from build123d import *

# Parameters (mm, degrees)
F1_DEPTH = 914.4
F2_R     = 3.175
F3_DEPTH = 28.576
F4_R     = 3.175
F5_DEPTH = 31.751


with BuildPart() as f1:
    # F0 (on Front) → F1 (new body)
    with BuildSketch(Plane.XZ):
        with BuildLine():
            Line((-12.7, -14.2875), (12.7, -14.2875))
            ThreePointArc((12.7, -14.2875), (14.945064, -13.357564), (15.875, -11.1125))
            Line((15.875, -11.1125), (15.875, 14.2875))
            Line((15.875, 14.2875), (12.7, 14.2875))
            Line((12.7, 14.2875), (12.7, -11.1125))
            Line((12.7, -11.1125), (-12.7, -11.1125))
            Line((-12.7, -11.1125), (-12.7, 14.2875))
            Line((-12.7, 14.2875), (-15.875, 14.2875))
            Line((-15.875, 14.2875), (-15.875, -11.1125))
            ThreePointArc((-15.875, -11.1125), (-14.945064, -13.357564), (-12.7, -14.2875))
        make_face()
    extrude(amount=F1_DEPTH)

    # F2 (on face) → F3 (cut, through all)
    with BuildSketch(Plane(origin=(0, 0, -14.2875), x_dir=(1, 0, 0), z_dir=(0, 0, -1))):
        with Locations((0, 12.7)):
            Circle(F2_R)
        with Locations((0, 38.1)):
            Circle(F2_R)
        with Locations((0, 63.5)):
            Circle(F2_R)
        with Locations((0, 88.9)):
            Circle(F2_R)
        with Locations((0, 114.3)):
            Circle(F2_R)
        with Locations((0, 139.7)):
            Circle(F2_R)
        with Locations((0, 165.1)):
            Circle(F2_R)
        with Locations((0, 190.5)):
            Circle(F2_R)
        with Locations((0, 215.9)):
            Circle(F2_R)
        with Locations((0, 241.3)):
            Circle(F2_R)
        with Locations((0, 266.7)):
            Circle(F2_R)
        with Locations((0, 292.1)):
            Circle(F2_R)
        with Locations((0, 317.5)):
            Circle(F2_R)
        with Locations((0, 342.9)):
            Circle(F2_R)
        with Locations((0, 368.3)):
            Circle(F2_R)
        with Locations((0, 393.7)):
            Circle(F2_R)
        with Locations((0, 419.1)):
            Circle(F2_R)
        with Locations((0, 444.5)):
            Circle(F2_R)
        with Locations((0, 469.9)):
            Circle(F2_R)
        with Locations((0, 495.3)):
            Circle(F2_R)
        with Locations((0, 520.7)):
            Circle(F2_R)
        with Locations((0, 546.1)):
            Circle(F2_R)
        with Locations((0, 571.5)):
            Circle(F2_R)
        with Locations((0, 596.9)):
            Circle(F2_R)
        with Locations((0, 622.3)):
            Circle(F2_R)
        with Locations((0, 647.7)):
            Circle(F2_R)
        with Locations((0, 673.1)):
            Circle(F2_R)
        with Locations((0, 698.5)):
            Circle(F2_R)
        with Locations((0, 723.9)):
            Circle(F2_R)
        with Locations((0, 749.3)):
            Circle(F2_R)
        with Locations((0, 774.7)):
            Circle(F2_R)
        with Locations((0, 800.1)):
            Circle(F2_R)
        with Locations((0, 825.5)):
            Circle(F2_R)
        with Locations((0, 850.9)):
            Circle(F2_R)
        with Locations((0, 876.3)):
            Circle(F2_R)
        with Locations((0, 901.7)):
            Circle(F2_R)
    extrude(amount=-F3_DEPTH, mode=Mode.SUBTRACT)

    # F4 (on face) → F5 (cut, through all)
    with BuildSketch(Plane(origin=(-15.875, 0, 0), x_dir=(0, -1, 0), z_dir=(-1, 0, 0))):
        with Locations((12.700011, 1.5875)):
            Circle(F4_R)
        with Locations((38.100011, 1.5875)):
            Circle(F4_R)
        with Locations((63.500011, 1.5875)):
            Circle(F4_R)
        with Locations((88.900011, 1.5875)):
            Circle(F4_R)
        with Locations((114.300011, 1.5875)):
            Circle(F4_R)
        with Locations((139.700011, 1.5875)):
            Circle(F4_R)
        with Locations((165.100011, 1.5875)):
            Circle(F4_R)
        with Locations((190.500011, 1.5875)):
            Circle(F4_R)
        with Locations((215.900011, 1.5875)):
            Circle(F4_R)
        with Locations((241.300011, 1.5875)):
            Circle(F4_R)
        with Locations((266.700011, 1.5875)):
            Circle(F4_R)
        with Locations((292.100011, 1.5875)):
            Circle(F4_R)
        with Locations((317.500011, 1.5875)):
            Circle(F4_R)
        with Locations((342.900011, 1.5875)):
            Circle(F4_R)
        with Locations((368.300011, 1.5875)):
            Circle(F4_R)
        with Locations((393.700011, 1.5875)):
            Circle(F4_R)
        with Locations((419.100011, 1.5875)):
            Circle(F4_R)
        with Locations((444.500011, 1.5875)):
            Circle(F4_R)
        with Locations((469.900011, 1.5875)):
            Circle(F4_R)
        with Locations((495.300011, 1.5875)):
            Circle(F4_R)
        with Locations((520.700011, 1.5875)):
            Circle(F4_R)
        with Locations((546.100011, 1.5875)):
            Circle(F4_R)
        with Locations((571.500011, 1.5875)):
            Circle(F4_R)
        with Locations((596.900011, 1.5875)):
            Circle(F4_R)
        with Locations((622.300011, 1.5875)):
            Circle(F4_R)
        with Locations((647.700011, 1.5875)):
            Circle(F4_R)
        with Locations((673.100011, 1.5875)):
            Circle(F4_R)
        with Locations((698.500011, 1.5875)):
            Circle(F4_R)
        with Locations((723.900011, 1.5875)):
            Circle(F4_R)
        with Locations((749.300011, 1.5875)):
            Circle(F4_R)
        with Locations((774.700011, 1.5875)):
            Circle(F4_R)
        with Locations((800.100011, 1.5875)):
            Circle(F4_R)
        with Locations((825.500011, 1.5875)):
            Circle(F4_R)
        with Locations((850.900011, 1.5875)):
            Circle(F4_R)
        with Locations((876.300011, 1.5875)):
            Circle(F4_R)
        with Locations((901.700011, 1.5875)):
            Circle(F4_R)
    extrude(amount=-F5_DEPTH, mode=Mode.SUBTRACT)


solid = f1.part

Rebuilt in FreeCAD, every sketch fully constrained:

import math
import FreeCAD as App
import Part
import Sketcher
Q = App.Units.Quantity

doc = App.newDocument("Part")
body = doc.addObject("PartDesign::Body", "Body")

# Sketch on XZ plane
sketch1 = body.newObject("Sketcher::SketchObject", "Sketch")
sketch1.AttachmentSupport = (doc.getObject("XZ_Plane"), [""])
sketch1.MapMode = "FlatFace"
sketch1.addGeometry(Part.LineSegment(App.Vector(-12.7, -14.3, 0), App.Vector(12.7, -14.3, 0)), False)
sketch1.addGeometry(Part.ArcOfCircle(Part.Circle(App.Vector(12.7, -11.1, 0), App.Vector(0, 0, 1), 3.2), math.radians(-90), math.radians(0)), False)
sketch1.addGeometry(Part.LineSegment(App.Vector(15.9, -11.1, 0), App.Vector(15.9, 14.3, 0)), False)
sketch1.addGeometry(Part.LineSegment(App.Vector(15.9, 14.3, 0), App.Vector(12.7, 14.3, 0)), False)
sketch1.addGeometry(Part.LineSegment(App.Vector(12.7, 14.3, 0), App.Vector(12.7, -11.1, 0)), False)
sketch1.addGeometry(Part.LineSegment(App.Vector(12.7, -11.1, 0), App.Vector(-12.7, -11.1, 0)), False)
sketch1.addGeometry(Part.LineSegment(App.Vector(-12.7, -11.1, 0), App.Vector(-12.7, 14.3, 0)), False)
sketch1.addGeometry(Part.LineSegment(App.Vector(-12.7, 14.3, 0), App.Vector(-15.9, 14.3, 0)), False)
sketch1.addGeometry(Part.LineSegment(App.Vector(-15.9, 14.3, 0), App.Vector(-15.9, -11.1, 0)), False)
sketch1.addGeometry(Part.ArcOfCircle(Part.Circle(App.Vector(-12.7, -11.1, 0), App.Vector(0, 0, 1), 3.2), math.radians(-180), math.radians(-90)), False)
sketch1.addConstraint(Sketcher.Constraint("Tangent", 0, 2, 1, 1))
sketch1.addConstraint(Sketcher.Constraint("Tangent", 1, 2, 2, 1))
sketch1.addConstraint(Sketcher.Constraint("Coincident", 2, 2, 3, 1))
sketch1.addConstraint(Sketcher.Constraint("Coincident", 3, 2, 4, 1))
sketch1.addConstraint(Sketcher.Constraint("Coincident", 4, 2, 5, 1))
sketch1.addConstraint(Sketcher.Constraint("Coincident", 5, 2, 6, 1))
sketch1.addConstraint(Sketcher.Constraint("Coincident", 6, 2, 7, 1))
sketch1.addConstraint(Sketcher.Constraint("Coincident", 7, 2, 8, 1))
sketch1.addConstraint(Sketcher.Constraint("Tangent", 8, 2, 9, 1))
sketch1.addConstraint(Sketcher.Constraint("Tangent", 9, 2, 0, 1))
sketch1.addConstraint(Sketcher.Constraint("Horizontal", 0))
sketch1.addConstraint(Sketcher.Constraint("Vertical", 2))
sketch1.addConstraint(Sketcher.Constraint("Horizontal", 3))
sketch1.addConstraint(Sketcher.Constraint("Vertical", 4))
sketch1.addConstraint(Sketcher.Constraint("Horizontal", 5))
sketch1.addConstraint(Sketcher.Constraint("Vertical", 6))
sketch1.addConstraint(Sketcher.Constraint("Horizontal", 7))
sketch1.addConstraint(Sketcher.Constraint("Vertical", 8))
sketch1.addConstraint(Sketcher.Constraint("Coincident", 4, 2, 1, 3))
sketch1.addConstraint(Sketcher.Constraint("Coincident", 5, 2, 9, 3))
sketch1.addConstraint(Sketcher.Constraint("Symmetric", 0, 2, 6, 2, -1, 1))
sketch1.addConstraint(Sketcher.Constraint("Horizontal", 3, 2, 6, 2))
sketch1.addConstraint(Sketcher.Constraint("Equal", 5, 2))
sketch1.addConstraint(Sketcher.Constraint("DistanceX", 0, 1, 0, 2, Q("1 in")))
sketch1.addConstraint(Sketcher.Constraint("Radius", 1, Q("0.125 in")))
pad1 = body.newObject("PartDesign::Pad", "Pad")
pad1.Profile = sketch1
pad1.Length = Q("36 in")

# Sketch on XY plane
sketch2 = body.newObject("Sketcher::SketchObject", "Sketch001")
sketch2.AttachmentSupport = (doc.getObject("XY_Plane"), [""])
sketch2.MapMode = "FlatFace"
sketch2.AttachmentOffset = App.Placement(App.Vector(0, 0, -0.5625 * 25.4), App.Rotation())
sketch2.addGeometry(Part.Circle(App.Vector(0, -12.7, 0), App.Vector(0, 0, 1), 3.2), False)
sketch2.addGeometry(Part.Circle(App.Vector(0, -38.1, 0), App.Vector(0, 0, 1), 3.2), False)
sketch2.addGeometry(Part.Circle(App.Vector(0, -63.5, 0), App.Vector(0, 0, 1), 3.2), False)
sketch2.addGeometry(Part.Circle(App.Vector(0, -88.9, 0), App.Vector(0, 0, 1), 3.2), False)
sketch2.addGeometry(Part.Circle(App.Vector(0, -114.3, 0), App.Vector(0, 0, 1), 3.2), False)
sketch2.addGeometry(Part.Circle(App.Vector(0, -139.7, 0), App.Vector(0, 0, 1), 3.2), False)
sketch2.addGeometry(Part.Circle(App.Vector(0, -165.1, 0), App.Vector(0, 0, 1), 3.2), False)
sketch2.addGeometry(Part.Circle(App.Vector(0, -190.5, 0), App.Vector(0, 0, 1), 3.2), False)
sketch2.addGeometry(Part.Circle(App.Vector(0, -215.9, 0), App.Vector(0, 0, 1), 3.2), False)
sketch2.addGeometry(Part.Circle(App.Vector(0, -241.3, 0), App.Vector(0, 0, 1), 3.2), False)
sketch2.addGeometry(Part.Circle(App.Vector(0, -266.7, 0), App.Vector(0, 0, 1), 3.2), False)
sketch2.addGeometry(Part.Circle(App.Vector(0, -292.1, 0), App.Vector(0, 0, 1), 3.2), False)
sketch2.addGeometry(Part.Circle(App.Vector(0, -317.5, 0), App.Vector(0, 0, 1), 3.2), False)
sketch2.addGeometry(Part.Circle(App.Vector(0, -342.9, 0), App.Vector(0, 0, 1), 3.2), False)
sketch2.addGeometry(Part.Circle(App.Vector(0, -368.3, 0), App.Vector(0, 0, 1), 3.2), False)
sketch2.addGeometry(Part.Circle(App.Vector(0, -393.7, 0), App.Vector(0, 0, 1), 3.2), False)
sketch2.addGeometry(Part.Circle(App.Vector(0, -419.1, 0), App.Vector(0, 0, 1), 3.2), False)
sketch2.addGeometry(Part.Circle(App.Vector(0, -444.5, 0), App.Vector(0, 0, 1), 3.2), False)
sketch2.addGeometry(Part.Circle(App.Vector(0, -469.9, 0), App.Vector(0, 0, 1), 3.2), False)
sketch2.addGeometry(Part.Circle(App.Vector(0, -495.3, 0), App.Vector(0, 0, 1), 3.2), False)
sketch2.addGeometry(Part.Circle(App.Vector(0, -520.7, 0), App.Vector(0, 0, 1), 3.2), False)
sketch2.addGeometry(Part.Circle(App.Vector(0, -546.1, 0), App.Vector(0, 0, 1), 3.2), False)
sketch2.addGeometry(Part.Circle(App.Vector(0, -571.5, 0), App.Vector(0, 0, 1), 3.2), False)
sketch2.addGeometry(Part.Circle(App.Vector(0, -596.9, 0), App.Vector(0, 0, 1), 3.2), False)
sketch2.addGeometry(Part.Circle(App.Vector(0, -622.3, 0), App.Vector(0, 0, 1), 3.2), False)
sketch2.addGeometry(Part.Circle(App.Vector(0, -647.7, 0), App.Vector(0, 0, 1), 3.2), False)
sketch2.addGeometry(Part.Circle(App.Vector(0, -673.1, 0), App.Vector(0, 0, 1), 3.2), False)
sketch2.addGeometry(Part.Circle(App.Vector(0, -698.5, 0), App.Vector(0, 0, 1), 3.2), False)
sketch2.addGeometry(Part.Circle(App.Vector(0, -723.9, 0), App.Vector(0, 0, 1), 3.2), False)
sketch2.addGeometry(Part.Circle(App.Vector(0, -749.3, 0), App.Vector(0, 0, 1), 3.2), False)
sketch2.addGeometry(Part.Circle(App.Vector(0, -774.7, 0), App.Vector(0, 0, 1), 3.2), False)
sketch2.addGeometry(Part.Circle(App.Vector(0, -800.1, 0), App.Vector(0, 0, 1), 3.2), False)
sketch2.addGeometry(Part.Circle(App.Vector(0, -825.5, 0), App.Vector(0, 0, 1), 3.2), False)
sketch2.addGeometry(Part.Circle(App.Vector(0, -850.9, 0), App.Vector(0, 0, 1), 3.2), False)
sketch2.addGeometry(Part.Circle(App.Vector(0, -876.3, 0), App.Vector(0, 0, 1), 3.2), False)
sketch2.addGeometry(Part.Circle(App.Vector(0, -901.7, 0), App.Vector(0, 0, 1), 3.2), False)
sketch2.addConstraint(Sketcher.Constraint("Equal", 0, 1))
sketch2.addConstraint(Sketcher.Constraint("Equal", 1, 2))
sketch2.addConstraint(Sketcher.Constraint("Equal", 2, 3))
sketch2.addConstraint(Sketcher.Constraint("Equal", 3, 4))
sketch2.addConstraint(Sketcher.Constraint("Equal", 4, 5))
sketch2.addConstraint(Sketcher.Constraint("Equal", 5, 6))
sketch2.addConstraint(Sketcher.Constraint("Equal", 6, 7))
sketch2.addConstraint(Sketcher.Constraint("Equal", 7, 8))
sketch2.addConstraint(Sketcher.Constraint("Equal", 8, 9))
sketch2.addConstraint(Sketcher.Constraint("Equal", 9, 10))
sketch2.addConstraint(Sketcher.Constraint("Equal", 10, 11))
sketch2.addConstraint(Sketcher.Constraint("Equal", 11, 12))
sketch2.addConstraint(Sketcher.Constraint("Equal", 12, 13))
sketch2.addConstraint(Sketcher.Constraint("Equal", 13, 14))
sketch2.addConstraint(Sketcher.Constraint("Equal", 14, 15))
sketch2.addConstraint(Sketcher.Constraint("Equal", 15, 16))
sketch2.addConstraint(Sketcher.Constraint("Equal", 16, 17))
sketch2.addConstraint(Sketcher.Constraint("Equal", 17, 18))
sketch2.addConstraint(Sketcher.Constraint("Equal", 18, 19))
sketch2.addConstraint(Sketcher.Constraint("Equal", 19, 20))
sketch2.addConstraint(Sketcher.Constraint("Equal", 20, 21))
sketch2.addConstraint(Sketcher.Constraint("Equal", 21, 22))
sketch2.addConstraint(Sketcher.Constraint("Equal", 22, 23))
sketch2.addConstraint(Sketcher.Constraint("Equal", 23, 24))
sketch2.addConstraint(Sketcher.Constraint("Equal", 24, 25))
sketch2.addConstraint(Sketcher.Constraint("Equal", 25, 26))
sketch2.addConstraint(Sketcher.Constraint("Equal", 26, 27))
sketch2.addConstraint(Sketcher.Constraint("Equal", 27, 28))
sketch2.addConstraint(Sketcher.Constraint("Equal", 28, 29))
sketch2.addConstraint(Sketcher.Constraint("Equal", 29, 30))
sketch2.addConstraint(Sketcher.Constraint("Equal", 30, 31))
sketch2.addConstraint(Sketcher.Constraint("Equal", 31, 32))
sketch2.addConstraint(Sketcher.Constraint("Equal", 32, 33))
sketch2.addConstraint(Sketcher.Constraint("Equal", 33, 34))
sketch2.addConstraint(Sketcher.Constraint("Equal", 34, 35))
sketch2.addConstraint(Sketcher.Constraint("PointOnObject", 0, 3, -2))
sketch2.addConstraint(Sketcher.Constraint("PointOnObject", 1, 3, -2))
sketch2.addConstraint(Sketcher.Constraint("PointOnObject", 2, 3, -2))
sketch2.addConstraint(Sketcher.Constraint("PointOnObject", 3, 3, -2))
sketch2.addConstraint(Sketcher.Constraint("PointOnObject", 4, 3, -2))
sketch2.addConstraint(Sketcher.Constraint("PointOnObject", 5, 3, -2))
sketch2.addConstraint(Sketcher.Constraint("PointOnObject", 6, 3, -2))
sketch2.addConstraint(Sketcher.Constraint("PointOnObject", 7, 3, -2))
sketch2.addConstraint(Sketcher.Constraint("PointOnObject", 8, 3, -2))
sketch2.addConstraint(Sketcher.Constraint("PointOnObject", 9, 3, -2))
sketch2.addConstraint(Sketcher.Constraint("PointOnObject", 10, 3, -2))
sketch2.addConstraint(Sketcher.Constraint("PointOnObject", 11, 3, -2))
sketch2.addConstraint(Sketcher.Constraint("PointOnObject", 12, 3, -2))
sketch2.addConstraint(Sketcher.Constraint("PointOnObject", 13, 3, -2))
sketch2.addConstraint(Sketcher.Constraint("PointOnObject", 14, 3, -2))
sketch2.addConstraint(Sketcher.Constraint("PointOnObject", 15, 3, -2))
sketch2.addConstraint(Sketcher.Constraint("PointOnObject", 16, 3, -2))
sketch2.addConstraint(Sketcher.Constraint("PointOnObject", 17, 3, -2))
sketch2.addConstraint(Sketcher.Constraint("PointOnObject", 18, 3, -2))
sketch2.addConstraint(Sketcher.Constraint("PointOnObject", 19, 3, -2))
sketch2.addConstraint(Sketcher.Constraint("PointOnObject", 20, 3, -2))
sketch2.addConstraint(Sketcher.Constraint("PointOnObject", 21, 3, -2))
sketch2.addConstraint(Sketcher.Constraint("PointOnObject", 22, 3, -2))
sketch2.addConstraint(Sketcher.Constraint("PointOnObject", 23, 3, -2))
sketch2.addConstraint(Sketcher.Constraint("PointOnObject", 24, 3, -2))
sketch2.addConstraint(Sketcher.Constraint("PointOnObject", 25, 3, -2))
sketch2.addConstraint(Sketcher.Constraint("PointOnObject", 26, 3, -2))
sketch2.addConstraint(Sketcher.Constraint("PointOnObject", 27, 3, -2))
sketch2.addConstraint(Sketcher.Constraint("PointOnObject", 28, 3, -2))
sketch2.addConstraint(Sketcher.Constraint("PointOnObject", 29, 3, -2))
sketch2.addConstraint(Sketcher.Constraint("PointOnObject", 30, 3, -2))
sketch2.addConstraint(Sketcher.Constraint("PointOnObject", 31, 3, -2))
sketch2.addConstraint(Sketcher.Constraint("PointOnObject", 32, 3, -2))
sketch2.addConstraint(Sketcher.Constraint("PointOnObject", 33, 3, -2))
sketch2.addConstraint(Sketcher.Constraint("PointOnObject", 34, 3, -2))
sketch2.addConstraint(Sketcher.Constraint("PointOnObject", 35, 3, -2))
sketch2.addConstraint(Sketcher.Constraint("Diameter", 0, Q("0.25 in")))
sketch2.addConstraint(Sketcher.Constraint("DistanceY", 1, 3, 0, 3, Q("1 in")))
sketch2.addConstraint(Sketcher.Constraint("DistanceY", 2, 3, 1, 3, Q("1 in")))
sketch2.addConstraint(Sketcher.Constraint("DistanceY", 3, 3, 2, 3, Q("1 in")))
sketch2.addConstraint(Sketcher.Constraint("DistanceY", 4, 3, 3, 3, Q("1 in")))
sketch2.addConstraint(Sketcher.Constraint("DistanceY", 5, 3, 4, 3, Q("1 in")))
sketch2.addConstraint(Sketcher.Constraint("DistanceY", 6, 3, 5, 3, Q("1 in")))
sketch2.addConstraint(Sketcher.Constraint("DistanceY", 7, 3, 6, 3, Q("1 in")))
sketch2.addConstraint(Sketcher.Constraint("DistanceY", 8, 3, 7, 3, Q("1 in")))
sketch2.addConstraint(Sketcher.Constraint("DistanceY", 9, 3, 8, 3, Q("1 in")))
sketch2.addConstraint(Sketcher.Constraint("DistanceY", 10, 3, 9, 3, Q("1 in")))
sketch2.addConstraint(Sketcher.Constraint("DistanceY", 11, 3, 10, 3, Q("1 in")))
sketch2.addConstraint(Sketcher.Constraint("DistanceY", 12, 3, 11, 3, Q("1 in")))
sketch2.addConstraint(Sketcher.Constraint("DistanceY", 13, 3, 12, 3, Q("1 in")))
sketch2.addConstraint(Sketcher.Constraint("DistanceY", 14, 3, 13, 3, Q("1 in")))
sketch2.addConstraint(Sketcher.Constraint("DistanceY", 15, 3, 14, 3, Q("1 in")))
sketch2.addConstraint(Sketcher.Constraint("DistanceY", 16, 3, 15, 3, Q("1 in")))
sketch2.addConstraint(Sketcher.Constraint("DistanceY", 17, 3, 16, 3, Q("1 in")))
sketch2.addConstraint(Sketcher.Constraint("DistanceY", 18, 3, 17, 3, Q("1 in")))
sketch2.addConstraint(Sketcher.Constraint("DistanceY", 19, 3, 18, 3, Q("1 in")))
sketch2.addConstraint(Sketcher.Constraint("DistanceY", 20, 3, 19, 3, Q("1 in")))
sketch2.addConstraint(Sketcher.Constraint("DistanceY", 21, 3, 20, 3, Q("1 in")))
sketch2.addConstraint(Sketcher.Constraint("DistanceY", 22, 3, 21, 3, Q("1 in")))
sketch2.addConstraint(Sketcher.Constraint("DistanceY", 23, 3, 22, 3, Q("1 in")))
sketch2.addConstraint(Sketcher.Constraint("DistanceY", 24, 3, 23, 3, Q("1 in")))
sketch2.addConstraint(Sketcher.Constraint("DistanceY", 25, 3, 24, 3, Q("1 in")))
sketch2.addConstraint(Sketcher.Constraint("DistanceY", 26, 3, 25, 3, Q("1 in")))
sketch2.addConstraint(Sketcher.Constraint("DistanceY", 27, 3, 26, 3, Q("1 in")))
sketch2.addConstraint(Sketcher.Constraint("DistanceY", 28, 3, 27, 3, Q("1 in")))
sketch2.addConstraint(Sketcher.Constraint("DistanceY", 29, 3, 28, 3, Q("1 in")))
sketch2.addConstraint(Sketcher.Constraint("DistanceY", 30, 3, 29, 3, Q("1 in")))
sketch2.addConstraint(Sketcher.Constraint("DistanceY", 31, 3, 30, 3, Q("1 in")))
sketch2.addConstraint(Sketcher.Constraint("DistanceY", 32, 3, 31, 3, Q("1 in")))
sketch2.addConstraint(Sketcher.Constraint("DistanceY", 33, 3, 32, 3, Q("1 in")))
sketch2.addConstraint(Sketcher.Constraint("DistanceY", 34, 3, 33, 3, Q("1 in")))
sketch2.addConstraint(Sketcher.Constraint("DistanceY", 35, 3, 34, 3, Q("1 in")))
sketch2.addConstraint(Sketcher.Constraint("DistanceY", 0, 3, -1, 1, Q("0.5 in")))
pocket1 = body.newObject("PartDesign::Pocket", "Pocket")
pocket1.Profile = sketch2
pocket1.Type = "ThroughAll"
pocket1.Reversed = True

# Sketch on YZ plane
sketch3 = body.newObject("Sketcher::SketchObject", "Sketch002")
sketch3.AttachmentSupport = (doc.getObject("YZ_Plane"), [""])
sketch3.MapMode = "FlatFace"
sketch3.AttachmentOffset = App.Placement(App.Vector(0, 0, -0.625 * 25.4), App.Rotation())
sketch3.addGeometry(Part.Circle(App.Vector(-12.7, 1.6, 0), App.Vector(0, 0, 1), 3.2), False)
sketch3.addGeometry(Part.Circle(App.Vector(-38.1, 1.6, 0), App.Vector(0, 0, 1), 3.2), False)
sketch3.addGeometry(Part.Circle(App.Vector(-63.5, 1.6, 0), App.Vector(0, 0, 1), 3.2), False)
sketch3.addGeometry(Part.Circle(App.Vector(-88.9, 1.6, 0), App.Vector(0, 0, 1), 3.2), False)
sketch3.addGeometry(Part.Circle(App.Vector(-114.3, 1.6, 0), App.Vector(0, 0, 1), 3.2), False)
sketch3.addGeometry(Part.Circle(App.Vector(-139.7, 1.6, 0), App.Vector(0, 0, 1), 3.2), False)
sketch3.addGeometry(Part.Circle(App.Vector(-165.1, 1.6, 0), App.Vector(0, 0, 1), 3.2), False)
sketch3.addGeometry(Part.Circle(App.Vector(-190.5, 1.6, 0), App.Vector(0, 0, 1), 3.2), False)
sketch3.addGeometry(Part.Circle(App.Vector(-215.9, 1.6, 0), App.Vector(0, 0, 1), 3.2), False)
sketch3.addGeometry(Part.Circle(App.Vector(-241.3, 1.6, 0), App.Vector(0, 0, 1), 3.2), False)
sketch3.addGeometry(Part.Circle(App.Vector(-266.7, 1.6, 0), App.Vector(0, 0, 1), 3.2), False)
sketch3.addGeometry(Part.Circle(App.Vector(-292.1, 1.6, 0), App.Vector(0, 0, 1), 3.2), False)
sketch3.addGeometry(Part.Circle(App.Vector(-317.5, 1.6, 0), App.Vector(0, 0, 1), 3.2), False)
sketch3.addGeometry(Part.Circle(App.Vector(-342.9, 1.6, 0), App.Vector(0, 0, 1), 3.2), False)
sketch3.addGeometry(Part.Circle(App.Vector(-368.3, 1.6, 0), App.Vector(0, 0, 1), 3.2), False)
sketch3.addGeometry(Part.Circle(App.Vector(-393.7, 1.6, 0), App.Vector(0, 0, 1), 3.2), False)
sketch3.addGeometry(Part.Circle(App.Vector(-419.1, 1.6, 0), App.Vector(0, 0, 1), 3.2), False)
sketch3.addGeometry(Part.Circle(App.Vector(-444.5, 1.6, 0), App.Vector(0, 0, 1), 3.2), False)
sketch3.addGeometry(Part.Circle(App.Vector(-469.9, 1.6, 0), App.Vector(0, 0, 1), 3.2), False)
sketch3.addGeometry(Part.Circle(App.Vector(-495.3, 1.6, 0), App.Vector(0, 0, 1), 3.2), False)
sketch3.addGeometry(Part.Circle(App.Vector(-520.7, 1.6, 0), App.Vector(0, 0, 1), 3.2), False)
sketch3.addGeometry(Part.Circle(App.Vector(-546.1, 1.6, 0), App.Vector(0, 0, 1), 3.2), False)
sketch3.addGeometry(Part.Circle(App.Vector(-571.5, 1.6, 0), App.Vector(0, 0, 1), 3.2), False)
sketch3.addGeometry(Part.Circle(App.Vector(-596.9, 1.6, 0), App.Vector(0, 0, 1), 3.2), False)
sketch3.addGeometry(Part.Circle(App.Vector(-622.3, 1.6, 0), App.Vector(0, 0, 1), 3.2), False)
sketch3.addGeometry(Part.Circle(App.Vector(-647.7, 1.6, 0), App.Vector(0, 0, 1), 3.2), False)
sketch3.addGeometry(Part.Circle(App.Vector(-673.1, 1.6, 0), App.Vector(0, 0, 1), 3.2), False)
sketch3.addGeometry(Part.Circle(App.Vector(-698.5, 1.6, 0), App.Vector(0, 0, 1), 3.2), False)
sketch3.addGeometry(Part.Circle(App.Vector(-723.9, 1.6, 0), App.Vector(0, 0, 1), 3.2), False)
sketch3.addGeometry(Part.Circle(App.Vector(-749.3, 1.6, 0), App.Vector(0, 0, 1), 3.2), False)
sketch3.addGeometry(Part.Circle(App.Vector(-774.7, 1.6, 0), App.Vector(0, 0, 1), 3.2), False)
sketch3.addGeometry(Part.Circle(App.Vector(-800.1, 1.6, 0), App.Vector(0, 0, 1), 3.2), False)
sketch3.addGeometry(Part.Circle(App.Vector(-825.5, 1.6, 0), App.Vector(0, 0, 1), 3.2), False)
sketch3.addGeometry(Part.Circle(App.Vector(-850.9, 1.6, 0), App.Vector(0, 0, 1), 3.2), False)
sketch3.addGeometry(Part.Circle(App.Vector(-876.3, 1.6, 0), App.Vector(0, 0, 1), 3.2), False)
sketch3.addGeometry(Part.Circle(App.Vector(-901.7, 1.6, 0), App.Vector(0, 0, 1), 3.2), False)
sketch3.addConstraint(Sketcher.Constraint("Equal", 0, 1))
sketch3.addConstraint(Sketcher.Constraint("Equal", 1, 2))
sketch3.addConstraint(Sketcher.Constraint("Equal", 2, 3))
sketch3.addConstraint(Sketcher.Constraint("Equal", 3, 4))
sketch3.addConstraint(Sketcher.Constraint("Equal", 4, 5))
sketch3.addConstraint(Sketcher.Constraint("Equal", 5, 6))
sketch3.addConstraint(Sketcher.Constraint("Equal", 6, 7))
sketch3.addConstraint(Sketcher.Constraint("Equal", 7, 8))
sketch3.addConstraint(Sketcher.Constraint("Equal", 8, 9))
sketch3.addConstraint(Sketcher.Constraint("Equal", 9, 10))
sketch3.addConstraint(Sketcher.Constraint("Equal", 10, 11))
sketch3.addConstraint(Sketcher.Constraint("Equal", 11, 12))
sketch3.addConstraint(Sketcher.Constraint("Equal", 12, 13))
sketch3.addConstraint(Sketcher.Constraint("Equal", 13, 14))
sketch3.addConstraint(Sketcher.Constraint("Equal", 14, 15))
sketch3.addConstraint(Sketcher.Constraint("Equal", 15, 16))
sketch3.addConstraint(Sketcher.Constraint("Equal", 16, 17))
sketch3.addConstraint(Sketcher.Constraint("Equal", 17, 18))
sketch3.addConstraint(Sketcher.Constraint("Equal", 18, 19))
sketch3.addConstraint(Sketcher.Constraint("Equal", 19, 20))
sketch3.addConstraint(Sketcher.Constraint("Equal", 20, 21))
sketch3.addConstraint(Sketcher.Constraint("Equal", 21, 22))
sketch3.addConstraint(Sketcher.Constraint("Equal", 22, 23))
sketch3.addConstraint(Sketcher.Constraint("Equal", 23, 24))
sketch3.addConstraint(Sketcher.Constraint("Equal", 24, 25))
sketch3.addConstraint(Sketcher.Constraint("Equal", 25, 26))
sketch3.addConstraint(Sketcher.Constraint("Equal", 26, 27))
sketch3.addConstraint(Sketcher.Constraint("Equal", 27, 28))
sketch3.addConstraint(Sketcher.Constraint("Equal", 28, 29))
sketch3.addConstraint(Sketcher.Constraint("Equal", 29, 30))
sketch3.addConstraint(Sketcher.Constraint("Equal", 30, 31))
sketch3.addConstraint(Sketcher.Constraint("Equal", 31, 32))
sketch3.addConstraint(Sketcher.Constraint("Equal", 32, 33))
sketch3.addConstraint(Sketcher.Constraint("Equal", 33, 34))
sketch3.addConstraint(Sketcher.Constraint("Equal", 34, 35))
sketch3.addConstraint(Sketcher.Constraint("Horizontal", 0, 3, 1, 3))
sketch3.addConstraint(Sketcher.Constraint("Horizontal", 1, 3, 2, 3))
sketch3.addConstraint(Sketcher.Constraint("Horizontal", 2, 3, 3, 3))
sketch3.addConstraint(Sketcher.Constraint("Horizontal", 3, 3, 4, 3))
sketch3.addConstraint(Sketcher.Constraint("Horizontal", 4, 3, 5, 3))
sketch3.addConstraint(Sketcher.Constraint("Horizontal", 5, 3, 6, 3))
sketch3.addConstraint(Sketcher.Constraint("Horizontal", 6, 3, 7, 3))
sketch3.addConstraint(Sketcher.Constraint("Horizontal", 7, 3, 8, 3))
sketch3.addConstraint(Sketcher.Constraint("Horizontal", 8, 3, 9, 3))
sketch3.addConstraint(Sketcher.Constraint("Horizontal", 9, 3, 10, 3))
sketch3.addConstraint(Sketcher.Constraint("Horizontal", 10, 3, 11, 3))
sketch3.addConstraint(Sketcher.Constraint("Horizontal", 11, 3, 12, 3))
sketch3.addConstraint(Sketcher.Constraint("Horizontal", 12, 3, 13, 3))
sketch3.addConstraint(Sketcher.Constraint("Horizontal", 13, 3, 14, 3))
sketch3.addConstraint(Sketcher.Constraint("Horizontal", 14, 3, 15, 3))
sketch3.addConstraint(Sketcher.Constraint("Horizontal", 15, 3, 16, 3))
sketch3.addConstraint(Sketcher.Constraint("Horizontal", 16, 3, 17, 3))
sketch3.addConstraint(Sketcher.Constraint("Horizontal", 17, 3, 18, 3))
sketch3.addConstraint(Sketcher.Constraint("Horizontal", 18, 3, 19, 3))
sketch3.addConstraint(Sketcher.Constraint("Horizontal", 19, 3, 20, 3))
sketch3.addConstraint(Sketcher.Constraint("Horizontal", 20, 3, 21, 3))
sketch3.addConstraint(Sketcher.Constraint("Horizontal", 21, 3, 22, 3))
sketch3.addConstraint(Sketcher.Constraint("Horizontal", 22, 3, 23, 3))
sketch3.addConstraint(Sketcher.Constraint("Horizontal", 23, 3, 24, 3))
sketch3.addConstraint(Sketcher.Constraint("Horizontal", 24, 3, 25, 3))
sketch3.addConstraint(Sketcher.Constraint("Horizontal", 25, 3, 26, 3))
sketch3.addConstraint(Sketcher.Constraint("Horizontal", 26, 3, 27, 3))
sketch3.addConstraint(Sketcher.Constraint("Horizontal", 27, 3, 28, 3))
sketch3.addConstraint(Sketcher.Constraint("Horizontal", 28, 3, 29, 3))
sketch3.addConstraint(Sketcher.Constraint("Horizontal", 29, 3, 30, 3))
sketch3.addConstraint(Sketcher.Constraint("Horizontal", 30, 3, 31, 3))
sketch3.addConstraint(Sketcher.Constraint("Horizontal", 31, 3, 32, 3))
sketch3.addConstraint(Sketcher.Constraint("Horizontal", 32, 3, 33, 3))
sketch3.addConstraint(Sketcher.Constraint("Horizontal", 33, 3, 34, 3))
sketch3.addConstraint(Sketcher.Constraint("Horizontal", 34, 3, 35, 3))
sketch3.addConstraint(Sketcher.Constraint("Diameter", 0, Q("0.25 in")))
sketch3.addConstraint(Sketcher.Constraint("DistanceX", 1, 3, 0, 3, Q("1 in")))
sketch3.addConstraint(Sketcher.Constraint("DistanceX", 2, 3, 1, 3, Q("1 in")))
sketch3.addConstraint(Sketcher.Constraint("DistanceX", 3, 3, 2, 3, Q("1 in")))
sketch3.addConstraint(Sketcher.Constraint("DistanceX", 4, 3, 3, 3, Q("1 in")))
sketch3.addConstraint(Sketcher.Constraint("DistanceX", 5, 3, 4, 3, Q("1 in")))
sketch3.addConstraint(Sketcher.Constraint("DistanceX", 6, 3, 5, 3, Q("1 in")))
sketch3.addConstraint(Sketcher.Constraint("DistanceX", 7, 3, 6, 3, Q("1 in")))
sketch3.addConstraint(Sketcher.Constraint("DistanceX", 8, 3, 7, 3, Q("1 in")))
sketch3.addConstraint(Sketcher.Constraint("DistanceX", 9, 3, 8, 3, Q("1 in")))
sketch3.addConstraint(Sketcher.Constraint("DistanceX", 10, 3, 9, 3, Q("1 in")))
sketch3.addConstraint(Sketcher.Constraint("DistanceX", 11, 3, 10, 3, Q("1 in")))
sketch3.addConstraint(Sketcher.Constraint("DistanceX", 12, 3, 11, 3, Q("1 in")))
sketch3.addConstraint(Sketcher.Constraint("DistanceX", 13, 3, 12, 3, Q("1 in")))
sketch3.addConstraint(Sketcher.Constraint("DistanceX", 14, 3, 13, 3, Q("1 in")))
sketch3.addConstraint(Sketcher.Constraint("DistanceX", 15, 3, 14, 3, Q("1 in")))
sketch3.addConstraint(Sketcher.Constraint("DistanceX", 16, 3, 15, 3, Q("1 in")))
sketch3.addConstraint(Sketcher.Constraint("DistanceX", 17, 3, 16, 3, Q("1 in")))
sketch3.addConstraint(Sketcher.Constraint("DistanceX", 18, 3, 17, 3, Q("1 in")))
sketch3.addConstraint(Sketcher.Constraint("DistanceX", 19, 3, 18, 3, Q("1 in")))
sketch3.addConstraint(Sketcher.Constraint("DistanceX", 20, 3, 19, 3, Q("1 in")))
sketch3.addConstraint(Sketcher.Constraint("DistanceX", 21, 3, 20, 3, Q("1 in")))
sketch3.addConstraint(Sketcher.Constraint("DistanceX", 22, 3, 21, 3, Q("1 in")))
sketch3.addConstraint(Sketcher.Constraint("DistanceX", 23, 3, 22, 3, Q("1 in")))
sketch3.addConstraint(Sketcher.Constraint("DistanceX", 24, 3, 23, 3, Q("1 in")))
sketch3.addConstraint(Sketcher.Constraint("DistanceX", 25, 3, 24, 3, Q("1 in")))
sketch3.addConstraint(Sketcher.Constraint("DistanceX", 26, 3, 25, 3, Q("1 in")))
sketch3.addConstraint(Sketcher.Constraint("DistanceX", 27, 3, 26, 3, Q("1 in")))
sketch3.addConstraint(Sketcher.Constraint("DistanceX", 28, 3, 27, 3, Q("1 in")))
sketch3.addConstraint(Sketcher.Constraint("DistanceX", 29, 3, 28, 3, Q("1 in")))
sketch3.addConstraint(Sketcher.Constraint("DistanceX", 30, 3, 29, 3, Q("1 in")))
sketch3.addConstraint(Sketcher.Constraint("DistanceX", 31, 3, 30, 3, Q("1 in")))
sketch3.addConstraint(Sketcher.Constraint("DistanceX", 32, 3, 31, 3, Q("1 in")))
sketch3.addConstraint(Sketcher.Constraint("DistanceX", 33, 3, 32, 3, Q("1 in")))
sketch3.addConstraint(Sketcher.Constraint("DistanceX", 34, 3, 33, 3, Q("1 in")))
sketch3.addConstraint(Sketcher.Constraint("DistanceX", 35, 3, 34, 3, Q("1 in")))
sketch3.addConstraint(Sketcher.Constraint("DistanceY", -1, 1, 0, 3, Q("0.0625 in")))
sketch3.addConstraint(Sketcher.Constraint("DistanceX", 0, 3, -1, 1, 12.700011))
pocket2 = body.newObject("PartDesign::Pocket", "Pocket001")
pocket2.Profile = sketch3
pocket2.Type = "ThroughAll"
pocket2.Reversed = True

doc.recompute()
